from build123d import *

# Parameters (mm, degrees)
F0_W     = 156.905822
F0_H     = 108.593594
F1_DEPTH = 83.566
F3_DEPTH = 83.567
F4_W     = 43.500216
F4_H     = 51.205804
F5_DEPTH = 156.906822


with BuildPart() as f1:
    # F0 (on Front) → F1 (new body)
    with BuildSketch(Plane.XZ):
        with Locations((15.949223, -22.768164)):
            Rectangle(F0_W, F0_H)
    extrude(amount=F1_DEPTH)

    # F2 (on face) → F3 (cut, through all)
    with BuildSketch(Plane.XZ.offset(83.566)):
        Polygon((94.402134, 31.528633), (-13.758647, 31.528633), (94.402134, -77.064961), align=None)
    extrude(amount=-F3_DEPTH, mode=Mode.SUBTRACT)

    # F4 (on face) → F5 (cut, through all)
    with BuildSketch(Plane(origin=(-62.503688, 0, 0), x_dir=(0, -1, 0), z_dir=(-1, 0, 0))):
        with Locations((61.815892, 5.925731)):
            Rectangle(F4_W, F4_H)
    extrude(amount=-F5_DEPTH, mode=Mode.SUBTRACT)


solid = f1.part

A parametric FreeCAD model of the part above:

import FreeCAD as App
import Part
import Sketcher

V = App.Vector
Q = App.Units.Quantity

doc = App.newDocument("Part")
params = doc.addObject("Spreadsheet::Sheet", "Params")
for row, (alias, value) in enumerate([
    ("pad1_length", "3.29 in"),
], start=1):
    params.set(f"A{row}", alias)
    params.set(f"B{row}", "=" + value)
    params.setAlias(f"B{row}", alias)

body = doc.addObject("PartDesign::Body", "Body")

# Sketch on XZ plane
sketch1 = body.newObject("Sketcher::SketchObject", "Sketch")
sketch1.AttachmentSupport = (doc.getObject("XZ_Plane"), [""])
sketch1.MapMode = "FlatFace"
sketch1.addGeometry([
    Part.LineSegment(V(-63, 32, 0), V(-63, -77, 0)),
    Part.LineSegment(V(-63, -77, 0), V(94, -77, 0)),
    Part.LineSegment(V(94, -77, 0), V(94, 32, 0)),
    Part.LineSegment(V(94, 32, 0), V(-63, 32, 0)),
], False)
sketch1.addConstraint([
    Sketcher.Constraint("Coincident", 0, 2, 1, 1),
    Sketcher.Constraint("Coincident", 1, 2, 2, 1),
    Sketcher.Constraint("Coincident", 2, 2, 3, 1),
    Sketcher.Constraint("Coincident", 3, 2, 0, 1),
    Sketcher.Constraint("Vertical", 0),
    Sketcher.Constraint("Horizontal", 1),
    Sketcher.Constraint("Vertical", 2),
    Sketcher.Constraint("Horizontal", 3),
    Sketcher.Constraint("DistanceX", 1, 1, 1, 2, 156.905822),
    Sketcher.Constraint("DistanceY", 0, 2, 0, 1, 108.593594),
    Sketcher.Constraint("DistanceY", 0, 2, -1, 1, 77.064961),
    Sketcher.Constraint("DistanceX", 0, 2, -1, 1, 62.503688),
])
pad1 = body.newObject("PartDesign::Pad", "Pad")
pad1.Profile = sketch1
pad1.setExpression("Length", "Params.pad1_length")

# Sketch on XZ plane
sketch2 = body.newObject("Sketcher::SketchObject", "Sketch001")
sketch2.AttachmentSupport = (doc.getObject("XZ_Plane"), [""])
sketch2.MapMode = "FlatFace"
sketch2.AttachmentOffset = App.Placement(V(0, 0, 3.29 * 25.4), App.Rotation())
sketch2.addGeometry([
    Part.LineSegment(V(94, 32, 0), V(-14, 32, 0)),
    Part.LineSegment(V(-14, 32, 0), V(94, -77, 0)),
    Part.LineSegment(V(94, -77, 0), V(94, 32, 0)),
], False)
sketch2.addConstraint([
    Sketcher.Constraint("Coincident", 0, 2, 1, 1),
    Sketcher.Constraint("Coincident", 1, 2, 2, 1),
    Sketcher.Constraint("Coincident", 2, 2, 0, 1),
    Sketcher.Constraint("Horizontal", 0),
    Sketcher.Constraint("Vertical", 2),
    Sketcher.Constraint("DistanceX", 0, 2, 0, 1, 108.160781),
    Sketcher.Constraint("DistanceY", 2, 1, 2, 2, 108.593594),
    Sketcher.Constraint("DistanceY", 1, 2, -1, 1, 77.064961),
    Sketcher.Constraint("DistanceX", 0, 2, -1, 1, 13.758647),
])
pocket1 = body.newObject("PartDesign::Pocket", "Pocket")
pocket1.Profile = sketch2
pocket1.Type = "ThroughAll"

# Sketch on YZ plane
sketch3 = body.newObject("Sketcher::SketchObject", "Sketch002")
sketch3.AttachmentSupport = (doc.getObject("YZ_Plane"), [""])
sketch3.MapMode = "FlatFace"
sketch3.AttachmentOffset = App.Placement(V(0, 0, -62.503688), App.Rotation())
sketch3.addGeometry([
    Part.LineSegment(V(-40, 32, 0), V(-40, -20, 0)),
    Part.LineSegment(V(-40, -20, 0), V(-84, -20, 0)),
    Part.LineSegment(V(-84, -20, 0), V(-84, 32, 0)),
    Part.LineSegment(V(-84, 32, 0), V(-40, 32, 0)),
], False)
sketch3.addConstraint([
    Sketcher.Constraint("Coincident", 0, 2, 1, 1),
    Sketcher.Constraint("Coincident", 1, 2, 2, 1),
    Sketcher.Constraint("Coincident", 2, 2, 3, 1),
    Sketcher.Constraint("Coincident", 3, 2, 0, 1),
    Sketcher.Constraint("Vertical", 0),
    Sketcher.Constraint("Horizontal", 1),
    Sketcher.Constraint("Vertical", 2),
    Sketcher.Constraint("Horizontal", 3),
    Sketcher.Constraint("DistanceX", 1, 2, -1, 1, Q("3.29 in")),
    Sketcher.Constraint("DistanceX", 1, 2, 1, 1, 43.500216),
    Sketcher.Constraint("DistanceY", 0, 2, 0, 1, 51.205804),
    Sketcher.Constraint("DistanceY", 0, 2, -1, 1, 19.677171),
])
pocket2 = body.newObject("PartDesign::Pocket", "Pocket001")
pocket2.Profile = sketch3
pocket2.Type = "ThroughAll"
pocket2.Reversed = True

doc.recompute()
